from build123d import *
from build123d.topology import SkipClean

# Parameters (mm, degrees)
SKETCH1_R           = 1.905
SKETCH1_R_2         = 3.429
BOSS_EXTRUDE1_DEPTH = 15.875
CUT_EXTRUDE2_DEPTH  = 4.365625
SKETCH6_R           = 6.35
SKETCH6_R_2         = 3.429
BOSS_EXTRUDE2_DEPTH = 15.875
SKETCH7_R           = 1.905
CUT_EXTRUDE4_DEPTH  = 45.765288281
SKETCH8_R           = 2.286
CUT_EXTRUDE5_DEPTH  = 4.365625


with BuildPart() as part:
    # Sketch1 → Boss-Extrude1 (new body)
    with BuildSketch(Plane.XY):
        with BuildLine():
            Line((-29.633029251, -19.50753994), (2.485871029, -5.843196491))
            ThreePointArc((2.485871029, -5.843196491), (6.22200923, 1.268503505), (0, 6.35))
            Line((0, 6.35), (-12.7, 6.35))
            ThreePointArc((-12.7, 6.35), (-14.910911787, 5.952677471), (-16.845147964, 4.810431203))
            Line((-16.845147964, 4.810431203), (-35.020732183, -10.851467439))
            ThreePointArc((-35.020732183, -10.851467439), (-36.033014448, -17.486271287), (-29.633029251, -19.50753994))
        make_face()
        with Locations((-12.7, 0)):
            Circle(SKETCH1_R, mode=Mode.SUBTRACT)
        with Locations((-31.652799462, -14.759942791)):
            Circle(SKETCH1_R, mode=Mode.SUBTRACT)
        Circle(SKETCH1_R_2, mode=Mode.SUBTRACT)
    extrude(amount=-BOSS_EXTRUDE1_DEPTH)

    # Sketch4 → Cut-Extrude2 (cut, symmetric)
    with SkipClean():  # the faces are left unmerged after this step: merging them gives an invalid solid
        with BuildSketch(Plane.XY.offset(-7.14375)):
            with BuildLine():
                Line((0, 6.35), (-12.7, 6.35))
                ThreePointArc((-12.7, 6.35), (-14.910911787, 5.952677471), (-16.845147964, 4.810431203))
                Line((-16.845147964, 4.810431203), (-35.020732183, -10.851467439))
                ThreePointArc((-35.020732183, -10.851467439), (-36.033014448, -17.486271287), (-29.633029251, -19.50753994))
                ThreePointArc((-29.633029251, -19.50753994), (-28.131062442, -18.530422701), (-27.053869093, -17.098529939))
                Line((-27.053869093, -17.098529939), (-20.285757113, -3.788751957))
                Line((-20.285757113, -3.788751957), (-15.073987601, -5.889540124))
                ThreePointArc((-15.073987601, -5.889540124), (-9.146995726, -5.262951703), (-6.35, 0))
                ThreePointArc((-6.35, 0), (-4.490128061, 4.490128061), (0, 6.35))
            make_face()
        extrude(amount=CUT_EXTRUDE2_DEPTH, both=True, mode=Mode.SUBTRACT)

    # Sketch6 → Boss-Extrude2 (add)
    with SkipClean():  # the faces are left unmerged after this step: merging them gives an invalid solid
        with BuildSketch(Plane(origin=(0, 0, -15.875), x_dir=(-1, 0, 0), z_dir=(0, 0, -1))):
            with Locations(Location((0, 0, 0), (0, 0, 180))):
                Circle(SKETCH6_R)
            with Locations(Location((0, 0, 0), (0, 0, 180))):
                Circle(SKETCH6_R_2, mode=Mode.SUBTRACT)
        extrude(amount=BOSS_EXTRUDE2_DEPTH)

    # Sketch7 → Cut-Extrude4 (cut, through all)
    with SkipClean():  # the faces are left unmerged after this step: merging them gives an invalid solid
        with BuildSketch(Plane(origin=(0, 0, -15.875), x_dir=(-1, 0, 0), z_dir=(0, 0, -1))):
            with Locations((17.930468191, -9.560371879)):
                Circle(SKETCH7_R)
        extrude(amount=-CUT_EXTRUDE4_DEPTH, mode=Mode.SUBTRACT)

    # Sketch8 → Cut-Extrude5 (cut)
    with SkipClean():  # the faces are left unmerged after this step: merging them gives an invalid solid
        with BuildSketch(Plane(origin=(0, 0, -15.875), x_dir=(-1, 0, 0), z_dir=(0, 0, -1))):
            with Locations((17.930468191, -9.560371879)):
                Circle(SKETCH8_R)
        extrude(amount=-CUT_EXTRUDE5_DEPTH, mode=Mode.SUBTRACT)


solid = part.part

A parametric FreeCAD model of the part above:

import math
import FreeCAD as App
import Part
import Sketcher

V = App.Vector
Q = App.Units.Quantity

doc = App.newDocument("Part")
body = doc.addObject("PartDesign::Body", "Body")

sketch1 = body.newObject("Sketcher::SketchObject", "Sketch")
sketch1.AttachmentSupport = (doc.getObject("XY_Plane"), [""])
sketch1.MapMode = "FlatFace"
sketch1.addGeometry(Part.LineSegment(V(-29.6, -19.5, 0), V(2.5, -5.8, 0)), False)
sketch1.addGeometry(Part.ArcOfCircle(Part.Circle(V(0, 0, 0), V(0, 0, 1), 6.3), math.radians(-67), math.radians(90)), False)
sketch1.addGeometry(Part.LineSegment(V(0, 6.3, 0), V(-12.7, 6.3, 0)), False)
sketch1.addGeometry(Part.ArcOfCircle(Part.Circle(V(-12.7, 0, 0), V(0, 0, 1), 6.3), math.radians(90), math.radians(131)), False)
sketch1.addGeometry(Part.LineSegment(V(-16.8, 4.8, 0), V(-35, -10.9, 0)), False)
sketch1.addGeometry(Part.ArcOfCircle(Part.Circle(V(-31.7, -14.8, 0), V(0, 0, 1), 5.2), math.radians(131), math.radians(293)), False)
sketch1.addGeometry(Part.Circle(V(-31.7, -14.8, 0), V(0, 0, 1), 1.9), False)
sketch1.addGeometry(Part.Circle(V(-12.7, 0, 0), V(0, 0, 1), 1.9), False)
sketch1.addGeometry(Part.Circle(V(0, 0, 0), V(0, 0, 1), 3.4), False)
sketch1.addConstraint(Sketcher.Constraint("Tangent", 0, 2, 1, 1))
sketch1.addConstraint(Sketcher.Constraint("Tangent", 1, 2, 2, 1))
sketch1.addConstraint(Sketcher.Constraint("Tangent", 2, 2, 3, 1))
sketch1.addConstraint(Sketcher.Constraint("Tangent", 3, 2, 4, 1))
sketch1.addConstraint(Sketcher.Constraint("Tangent", 4, 2, 5, 1))
sketch1.addConstraint(Sketcher.Constraint("Tangent", 5, 2, 0, 1))
sketch1.addConstraint(Sketcher.Constraint("Horizontal", 2))
sketch1.addConstraint(Sketcher.Constraint("Coincident", 1, 3, -1, 1))
sketch1.addConstraint(Sketcher.Constraint("Coincident", 8, 3, -1, 1))
sketch1.addConstraint(Sketcher.Constraint("Coincident", 6, 3, 5, 3))
sketch1.addConstraint(Sketcher.Constraint("Coincident", 7, 3, 3, 3))
sketch1.addConstraint(Sketcher.Constraint("Equal", 1, 3))
sketch1.addConstraint(Sketcher.Constraint("Equal", 6, 7))
sketch1.addConstraint(Sketcher.Constraint("Diameter", 6, Q("0.15 in")))
sketch1.addConstraint(Sketcher.Constraint("Diameter", 8, Q("0.27 in")))
sketch1.addConstraint(Sketcher.Constraint("Radius", 1, Q("0.25 in")))
sketch1.addConstraint(Sketcher.Constraint("DistanceX", 2, 2, 2, 1, Q("0.5 in")))
sketch1.addConstraint(Sketcher.Constraint("Radius", 5, Q("0.203125 in")))
sketch1.addConstraint(Sketcher.Constraint("DistanceY", 5, 3, -1, 1, Q("0.5811001 in")))
sketch1.addConstraint(Sketcher.Constraint("Distance", 0, 34.904699))
pad1 = body.newObject("PartDesign::Pad", "Pad")
pad1.Profile = sketch1
pad1.Length = Q("0.625 in")
pad1.Reversed = True

sketch2 = body.newObject("Sketcher::SketchObject", "Sketch001")
sketch2.AttachmentSupport = (doc.getObject("XY_Plane"), [""])
sketch2.MapMode = "FlatFace"
sketch2.AttachmentOffset = App.Placement(V(0, 0, -0.28125 * 25.4), App.Rotation())
sketch2.addGeometry(Part.LineSegment(V(0, 6.3, 0), V(-12.7, 6.3, 0)), False)
sketch2.addGeometry(Part.ArcOfCircle(Part.Circle(V(-12.7, 0, 0), V(0, 0, 1), 6.3), math.radians(90), math.radians(131)), False)
sketch2.addGeometry(Part.LineSegment(V(-16.8, 4.8, 0), V(-35, -10.9, 0)), False)
sketch2.addGeometry(Part.ArcOfCircle(Part.Circle(V(-31.7, -14.8, 0), V(0, 0, 1), 5.2), math.radians(131), math.radians(293)), False)
sketch2.addGeometry(Part.ArcOfCircle(Part.Circle(V(-31.7, -14.8, 0), V(0, 0, 1), 5.2), math.radians(-67), math.radians(-27)), False)
sketch2.addGeometry(Part.LineSegment(V(-27.1, -17.1, 0), V(-20.3, -3.8, 0)), False)
sketch2.addGeometry(Part.LineSegment(V(-20.3, -3.8, 0), V(-15.1, -5.9, 0)), False)
sketch2.addGeometry(Part.ArcOfCircle(Part.Circle(V(-12.7, 0, 0), V(0, 0, 1), 6.3), math.radians(-112), math.radians(0)), False)
sketch2.addGeometry(Part.ArcOfCircle(Part.Circle(V(0, 0, 0), V(0, 0, 1), 6.3), math.radians(90), math.radians(180)), False)
sketch2.addConstraint(Sketcher.Constraint("Tangent", 0, 2, 1, 1))
sketch2.addConstraint(Sketcher.Constraint("Tangent", 1, 2, 2, 1))
sketch2.addConstraint(Sketcher.Constraint("Tangent", 2, 2, 3, 1))
sketch2.addConstraint(Sketcher.Constraint("Tangent", 3, 2, 4, 1))
sketch2.addConstraint(Sketcher.Constraint("Tangent", 4, 2, 5, 1))
sketch2.addConstraint(Sketcher.Constraint("Coincident", 5, 2, 6, 1))
sketch2.addConstraint(Sketcher.Constraint("Tangent", 6, 2, 7, 1))
sketch2.addConstraint(Sketcher.Constraint("Tangent", 7, 2, 8, 2))
sketch2.addConstraint(Sketcher.Constraint("Tangent", 8, 1, 0, 1))
sketch2.addConstraint(Sketcher.Constraint("Horizontal", 0))
sketch2.addConstraint(Sketcher.Constraint("Coincident", 8, 3, -1, 1))
sketch2.addConstraint(Sketcher.Constraint("Coincident", 7, 3, 1, 3))
sketch2.addConstraint(Sketcher.Constraint("Equal", 3, 4))
sketch2.addConstraint(Sketcher.Constraint("Equal", 1, 7))
sketch2.addConstraint(Sketcher.Constraint("Equal", 7, 8))
sketch2.addConstraint(Sketcher.Constraint("Radius", 1, Q("0.25 in")))
sketch2.addConstraint(Sketcher.Constraint("Radius", 3, Q("0.203125 in")))
sketch2.addConstraint(Sketcher.Constraint("DistanceY", 3, 3, -1, 1, Q("0.5811001 in")))
sketch2.addConstraint(Sketcher.Constraint("DistanceX", 3, 3, -1, 1, 31.652799))
sketch2.addConstraint(Sketcher.Constraint("Distance", 6, 5.619239))
sketch2.addConstraint(Sketcher.Constraint("DistanceX", 3, 2, -1, 1, 29.633029))
sketch2.addConstraint(Sketcher.Constraint("DistanceX", 4, 2, -1, 1, 27.053869))
pocket1 = body.newObject("PartDesign::Pocket", "Pocket")
pocket1.Profile = sketch2
pocket1.Length = Q("0.34375 in")
pocket1.Midplane = True

sketch3 = body.newObject("Sketcher::SketchObject", "Sketch002")
sketch3.AttachmentSupport = (doc.getObject("XY_Plane"), [""])
sketch3.MapMode = "FlatFace"
sketch3.AttachmentOffset = App.Placement(V(0, 0, -0.625 * 25.4), App.Rotation())
sketch3.addGeometry(Part.Circle(V(0, 0, 0), V(0, 0, 1), 6.3), False)
sketch3.addGeometry(Part.Circle(V(0, 0, 0), V(0, 0, 1), 3.4), False)
sketch3.addConstraint(Sketcher.Constraint("Coincident", 0, 3, -1, 1))
sketch3.addConstraint(Sketcher.Constraint("Coincident", 1, 3, -1, 1))
sketch3.addConstraint(Sketcher.Constraint("Diameter", 0, Q("0.5 in")))
sketch3.addConstraint(Sketcher.Constraint("Diameter", 1, Q("0.27 in")))
pad2 = body.newObject("PartDesign::Pad", "Pad001")
pad2.Profile = sketch3
pad2.Length = Q("0.625 in")
pad2.Reversed = True

sketch4 = body.newObject("Sketcher::SketchObject", "Sketch003")
sketch4.AttachmentSupport = (doc.getObject("XY_Plane"), [""])
sketch4.MapMode = "FlatFace"
sketch4.AttachmentOffset = App.Placement(V(0, 0, -0.625 * 25.4), App.Rotation())
sketch4.addGeometry(Part.Circle(V(-17.9, -9.6, 0), V(0, 0, 1), 1.9), False)
sketch4.addConstraint(Sketcher.Constraint("Diameter", 0, Q("0.15 in")))
sketch4.addConstraint(Sketcher.Constraint("DistanceX", 0, 3, -1, 1, 17.930468))
sketch4.addConstraint(Sketcher.Constraint("DistanceY", 0, 3, -1, 1, 9.560372))
pocket2 = body.newObject("PartDesign::Pocket", "Pocket001")
pocket2.Profile = sketch4
pocket2.Type = "ThroughAll"
pocket2.Reversed = True

sketch5 = body.newObject("Sketcher::SketchObject", "Sketch004")
sketch5.AttachmentSupport = (doc.getObject("XY_Plane"), [""])
sketch5.MapMode = "FlatFace"
sketch5.AttachmentOffset = App.Placement(V(0, 0, -0.625 * 25.4), App.Rotation())
sketch5.addGeometry(Part.Circle(V(-17.9, -9.6, 0), V(0, 0, 1), 2.3), False)
sketch5.addConstraint(Sketcher.Constraint("Diameter", 0, Q("0.18 in")))
sketch5.addConstraint(Sketcher.Constraint("DistanceX", 0, 3, -1, 1, 17.930468))
sketch5.addConstraint(Sketcher.Constraint("DistanceY", 0, 3, -1, 1, 9.560372))
pocket3 = body.newObject("PartDesign::Pocket", "Pocket002")
pocket3.Profile = sketch5
pocket3.Length = Q("0.171875 in")
pocket3.Reversed = True

doc.recompute()
